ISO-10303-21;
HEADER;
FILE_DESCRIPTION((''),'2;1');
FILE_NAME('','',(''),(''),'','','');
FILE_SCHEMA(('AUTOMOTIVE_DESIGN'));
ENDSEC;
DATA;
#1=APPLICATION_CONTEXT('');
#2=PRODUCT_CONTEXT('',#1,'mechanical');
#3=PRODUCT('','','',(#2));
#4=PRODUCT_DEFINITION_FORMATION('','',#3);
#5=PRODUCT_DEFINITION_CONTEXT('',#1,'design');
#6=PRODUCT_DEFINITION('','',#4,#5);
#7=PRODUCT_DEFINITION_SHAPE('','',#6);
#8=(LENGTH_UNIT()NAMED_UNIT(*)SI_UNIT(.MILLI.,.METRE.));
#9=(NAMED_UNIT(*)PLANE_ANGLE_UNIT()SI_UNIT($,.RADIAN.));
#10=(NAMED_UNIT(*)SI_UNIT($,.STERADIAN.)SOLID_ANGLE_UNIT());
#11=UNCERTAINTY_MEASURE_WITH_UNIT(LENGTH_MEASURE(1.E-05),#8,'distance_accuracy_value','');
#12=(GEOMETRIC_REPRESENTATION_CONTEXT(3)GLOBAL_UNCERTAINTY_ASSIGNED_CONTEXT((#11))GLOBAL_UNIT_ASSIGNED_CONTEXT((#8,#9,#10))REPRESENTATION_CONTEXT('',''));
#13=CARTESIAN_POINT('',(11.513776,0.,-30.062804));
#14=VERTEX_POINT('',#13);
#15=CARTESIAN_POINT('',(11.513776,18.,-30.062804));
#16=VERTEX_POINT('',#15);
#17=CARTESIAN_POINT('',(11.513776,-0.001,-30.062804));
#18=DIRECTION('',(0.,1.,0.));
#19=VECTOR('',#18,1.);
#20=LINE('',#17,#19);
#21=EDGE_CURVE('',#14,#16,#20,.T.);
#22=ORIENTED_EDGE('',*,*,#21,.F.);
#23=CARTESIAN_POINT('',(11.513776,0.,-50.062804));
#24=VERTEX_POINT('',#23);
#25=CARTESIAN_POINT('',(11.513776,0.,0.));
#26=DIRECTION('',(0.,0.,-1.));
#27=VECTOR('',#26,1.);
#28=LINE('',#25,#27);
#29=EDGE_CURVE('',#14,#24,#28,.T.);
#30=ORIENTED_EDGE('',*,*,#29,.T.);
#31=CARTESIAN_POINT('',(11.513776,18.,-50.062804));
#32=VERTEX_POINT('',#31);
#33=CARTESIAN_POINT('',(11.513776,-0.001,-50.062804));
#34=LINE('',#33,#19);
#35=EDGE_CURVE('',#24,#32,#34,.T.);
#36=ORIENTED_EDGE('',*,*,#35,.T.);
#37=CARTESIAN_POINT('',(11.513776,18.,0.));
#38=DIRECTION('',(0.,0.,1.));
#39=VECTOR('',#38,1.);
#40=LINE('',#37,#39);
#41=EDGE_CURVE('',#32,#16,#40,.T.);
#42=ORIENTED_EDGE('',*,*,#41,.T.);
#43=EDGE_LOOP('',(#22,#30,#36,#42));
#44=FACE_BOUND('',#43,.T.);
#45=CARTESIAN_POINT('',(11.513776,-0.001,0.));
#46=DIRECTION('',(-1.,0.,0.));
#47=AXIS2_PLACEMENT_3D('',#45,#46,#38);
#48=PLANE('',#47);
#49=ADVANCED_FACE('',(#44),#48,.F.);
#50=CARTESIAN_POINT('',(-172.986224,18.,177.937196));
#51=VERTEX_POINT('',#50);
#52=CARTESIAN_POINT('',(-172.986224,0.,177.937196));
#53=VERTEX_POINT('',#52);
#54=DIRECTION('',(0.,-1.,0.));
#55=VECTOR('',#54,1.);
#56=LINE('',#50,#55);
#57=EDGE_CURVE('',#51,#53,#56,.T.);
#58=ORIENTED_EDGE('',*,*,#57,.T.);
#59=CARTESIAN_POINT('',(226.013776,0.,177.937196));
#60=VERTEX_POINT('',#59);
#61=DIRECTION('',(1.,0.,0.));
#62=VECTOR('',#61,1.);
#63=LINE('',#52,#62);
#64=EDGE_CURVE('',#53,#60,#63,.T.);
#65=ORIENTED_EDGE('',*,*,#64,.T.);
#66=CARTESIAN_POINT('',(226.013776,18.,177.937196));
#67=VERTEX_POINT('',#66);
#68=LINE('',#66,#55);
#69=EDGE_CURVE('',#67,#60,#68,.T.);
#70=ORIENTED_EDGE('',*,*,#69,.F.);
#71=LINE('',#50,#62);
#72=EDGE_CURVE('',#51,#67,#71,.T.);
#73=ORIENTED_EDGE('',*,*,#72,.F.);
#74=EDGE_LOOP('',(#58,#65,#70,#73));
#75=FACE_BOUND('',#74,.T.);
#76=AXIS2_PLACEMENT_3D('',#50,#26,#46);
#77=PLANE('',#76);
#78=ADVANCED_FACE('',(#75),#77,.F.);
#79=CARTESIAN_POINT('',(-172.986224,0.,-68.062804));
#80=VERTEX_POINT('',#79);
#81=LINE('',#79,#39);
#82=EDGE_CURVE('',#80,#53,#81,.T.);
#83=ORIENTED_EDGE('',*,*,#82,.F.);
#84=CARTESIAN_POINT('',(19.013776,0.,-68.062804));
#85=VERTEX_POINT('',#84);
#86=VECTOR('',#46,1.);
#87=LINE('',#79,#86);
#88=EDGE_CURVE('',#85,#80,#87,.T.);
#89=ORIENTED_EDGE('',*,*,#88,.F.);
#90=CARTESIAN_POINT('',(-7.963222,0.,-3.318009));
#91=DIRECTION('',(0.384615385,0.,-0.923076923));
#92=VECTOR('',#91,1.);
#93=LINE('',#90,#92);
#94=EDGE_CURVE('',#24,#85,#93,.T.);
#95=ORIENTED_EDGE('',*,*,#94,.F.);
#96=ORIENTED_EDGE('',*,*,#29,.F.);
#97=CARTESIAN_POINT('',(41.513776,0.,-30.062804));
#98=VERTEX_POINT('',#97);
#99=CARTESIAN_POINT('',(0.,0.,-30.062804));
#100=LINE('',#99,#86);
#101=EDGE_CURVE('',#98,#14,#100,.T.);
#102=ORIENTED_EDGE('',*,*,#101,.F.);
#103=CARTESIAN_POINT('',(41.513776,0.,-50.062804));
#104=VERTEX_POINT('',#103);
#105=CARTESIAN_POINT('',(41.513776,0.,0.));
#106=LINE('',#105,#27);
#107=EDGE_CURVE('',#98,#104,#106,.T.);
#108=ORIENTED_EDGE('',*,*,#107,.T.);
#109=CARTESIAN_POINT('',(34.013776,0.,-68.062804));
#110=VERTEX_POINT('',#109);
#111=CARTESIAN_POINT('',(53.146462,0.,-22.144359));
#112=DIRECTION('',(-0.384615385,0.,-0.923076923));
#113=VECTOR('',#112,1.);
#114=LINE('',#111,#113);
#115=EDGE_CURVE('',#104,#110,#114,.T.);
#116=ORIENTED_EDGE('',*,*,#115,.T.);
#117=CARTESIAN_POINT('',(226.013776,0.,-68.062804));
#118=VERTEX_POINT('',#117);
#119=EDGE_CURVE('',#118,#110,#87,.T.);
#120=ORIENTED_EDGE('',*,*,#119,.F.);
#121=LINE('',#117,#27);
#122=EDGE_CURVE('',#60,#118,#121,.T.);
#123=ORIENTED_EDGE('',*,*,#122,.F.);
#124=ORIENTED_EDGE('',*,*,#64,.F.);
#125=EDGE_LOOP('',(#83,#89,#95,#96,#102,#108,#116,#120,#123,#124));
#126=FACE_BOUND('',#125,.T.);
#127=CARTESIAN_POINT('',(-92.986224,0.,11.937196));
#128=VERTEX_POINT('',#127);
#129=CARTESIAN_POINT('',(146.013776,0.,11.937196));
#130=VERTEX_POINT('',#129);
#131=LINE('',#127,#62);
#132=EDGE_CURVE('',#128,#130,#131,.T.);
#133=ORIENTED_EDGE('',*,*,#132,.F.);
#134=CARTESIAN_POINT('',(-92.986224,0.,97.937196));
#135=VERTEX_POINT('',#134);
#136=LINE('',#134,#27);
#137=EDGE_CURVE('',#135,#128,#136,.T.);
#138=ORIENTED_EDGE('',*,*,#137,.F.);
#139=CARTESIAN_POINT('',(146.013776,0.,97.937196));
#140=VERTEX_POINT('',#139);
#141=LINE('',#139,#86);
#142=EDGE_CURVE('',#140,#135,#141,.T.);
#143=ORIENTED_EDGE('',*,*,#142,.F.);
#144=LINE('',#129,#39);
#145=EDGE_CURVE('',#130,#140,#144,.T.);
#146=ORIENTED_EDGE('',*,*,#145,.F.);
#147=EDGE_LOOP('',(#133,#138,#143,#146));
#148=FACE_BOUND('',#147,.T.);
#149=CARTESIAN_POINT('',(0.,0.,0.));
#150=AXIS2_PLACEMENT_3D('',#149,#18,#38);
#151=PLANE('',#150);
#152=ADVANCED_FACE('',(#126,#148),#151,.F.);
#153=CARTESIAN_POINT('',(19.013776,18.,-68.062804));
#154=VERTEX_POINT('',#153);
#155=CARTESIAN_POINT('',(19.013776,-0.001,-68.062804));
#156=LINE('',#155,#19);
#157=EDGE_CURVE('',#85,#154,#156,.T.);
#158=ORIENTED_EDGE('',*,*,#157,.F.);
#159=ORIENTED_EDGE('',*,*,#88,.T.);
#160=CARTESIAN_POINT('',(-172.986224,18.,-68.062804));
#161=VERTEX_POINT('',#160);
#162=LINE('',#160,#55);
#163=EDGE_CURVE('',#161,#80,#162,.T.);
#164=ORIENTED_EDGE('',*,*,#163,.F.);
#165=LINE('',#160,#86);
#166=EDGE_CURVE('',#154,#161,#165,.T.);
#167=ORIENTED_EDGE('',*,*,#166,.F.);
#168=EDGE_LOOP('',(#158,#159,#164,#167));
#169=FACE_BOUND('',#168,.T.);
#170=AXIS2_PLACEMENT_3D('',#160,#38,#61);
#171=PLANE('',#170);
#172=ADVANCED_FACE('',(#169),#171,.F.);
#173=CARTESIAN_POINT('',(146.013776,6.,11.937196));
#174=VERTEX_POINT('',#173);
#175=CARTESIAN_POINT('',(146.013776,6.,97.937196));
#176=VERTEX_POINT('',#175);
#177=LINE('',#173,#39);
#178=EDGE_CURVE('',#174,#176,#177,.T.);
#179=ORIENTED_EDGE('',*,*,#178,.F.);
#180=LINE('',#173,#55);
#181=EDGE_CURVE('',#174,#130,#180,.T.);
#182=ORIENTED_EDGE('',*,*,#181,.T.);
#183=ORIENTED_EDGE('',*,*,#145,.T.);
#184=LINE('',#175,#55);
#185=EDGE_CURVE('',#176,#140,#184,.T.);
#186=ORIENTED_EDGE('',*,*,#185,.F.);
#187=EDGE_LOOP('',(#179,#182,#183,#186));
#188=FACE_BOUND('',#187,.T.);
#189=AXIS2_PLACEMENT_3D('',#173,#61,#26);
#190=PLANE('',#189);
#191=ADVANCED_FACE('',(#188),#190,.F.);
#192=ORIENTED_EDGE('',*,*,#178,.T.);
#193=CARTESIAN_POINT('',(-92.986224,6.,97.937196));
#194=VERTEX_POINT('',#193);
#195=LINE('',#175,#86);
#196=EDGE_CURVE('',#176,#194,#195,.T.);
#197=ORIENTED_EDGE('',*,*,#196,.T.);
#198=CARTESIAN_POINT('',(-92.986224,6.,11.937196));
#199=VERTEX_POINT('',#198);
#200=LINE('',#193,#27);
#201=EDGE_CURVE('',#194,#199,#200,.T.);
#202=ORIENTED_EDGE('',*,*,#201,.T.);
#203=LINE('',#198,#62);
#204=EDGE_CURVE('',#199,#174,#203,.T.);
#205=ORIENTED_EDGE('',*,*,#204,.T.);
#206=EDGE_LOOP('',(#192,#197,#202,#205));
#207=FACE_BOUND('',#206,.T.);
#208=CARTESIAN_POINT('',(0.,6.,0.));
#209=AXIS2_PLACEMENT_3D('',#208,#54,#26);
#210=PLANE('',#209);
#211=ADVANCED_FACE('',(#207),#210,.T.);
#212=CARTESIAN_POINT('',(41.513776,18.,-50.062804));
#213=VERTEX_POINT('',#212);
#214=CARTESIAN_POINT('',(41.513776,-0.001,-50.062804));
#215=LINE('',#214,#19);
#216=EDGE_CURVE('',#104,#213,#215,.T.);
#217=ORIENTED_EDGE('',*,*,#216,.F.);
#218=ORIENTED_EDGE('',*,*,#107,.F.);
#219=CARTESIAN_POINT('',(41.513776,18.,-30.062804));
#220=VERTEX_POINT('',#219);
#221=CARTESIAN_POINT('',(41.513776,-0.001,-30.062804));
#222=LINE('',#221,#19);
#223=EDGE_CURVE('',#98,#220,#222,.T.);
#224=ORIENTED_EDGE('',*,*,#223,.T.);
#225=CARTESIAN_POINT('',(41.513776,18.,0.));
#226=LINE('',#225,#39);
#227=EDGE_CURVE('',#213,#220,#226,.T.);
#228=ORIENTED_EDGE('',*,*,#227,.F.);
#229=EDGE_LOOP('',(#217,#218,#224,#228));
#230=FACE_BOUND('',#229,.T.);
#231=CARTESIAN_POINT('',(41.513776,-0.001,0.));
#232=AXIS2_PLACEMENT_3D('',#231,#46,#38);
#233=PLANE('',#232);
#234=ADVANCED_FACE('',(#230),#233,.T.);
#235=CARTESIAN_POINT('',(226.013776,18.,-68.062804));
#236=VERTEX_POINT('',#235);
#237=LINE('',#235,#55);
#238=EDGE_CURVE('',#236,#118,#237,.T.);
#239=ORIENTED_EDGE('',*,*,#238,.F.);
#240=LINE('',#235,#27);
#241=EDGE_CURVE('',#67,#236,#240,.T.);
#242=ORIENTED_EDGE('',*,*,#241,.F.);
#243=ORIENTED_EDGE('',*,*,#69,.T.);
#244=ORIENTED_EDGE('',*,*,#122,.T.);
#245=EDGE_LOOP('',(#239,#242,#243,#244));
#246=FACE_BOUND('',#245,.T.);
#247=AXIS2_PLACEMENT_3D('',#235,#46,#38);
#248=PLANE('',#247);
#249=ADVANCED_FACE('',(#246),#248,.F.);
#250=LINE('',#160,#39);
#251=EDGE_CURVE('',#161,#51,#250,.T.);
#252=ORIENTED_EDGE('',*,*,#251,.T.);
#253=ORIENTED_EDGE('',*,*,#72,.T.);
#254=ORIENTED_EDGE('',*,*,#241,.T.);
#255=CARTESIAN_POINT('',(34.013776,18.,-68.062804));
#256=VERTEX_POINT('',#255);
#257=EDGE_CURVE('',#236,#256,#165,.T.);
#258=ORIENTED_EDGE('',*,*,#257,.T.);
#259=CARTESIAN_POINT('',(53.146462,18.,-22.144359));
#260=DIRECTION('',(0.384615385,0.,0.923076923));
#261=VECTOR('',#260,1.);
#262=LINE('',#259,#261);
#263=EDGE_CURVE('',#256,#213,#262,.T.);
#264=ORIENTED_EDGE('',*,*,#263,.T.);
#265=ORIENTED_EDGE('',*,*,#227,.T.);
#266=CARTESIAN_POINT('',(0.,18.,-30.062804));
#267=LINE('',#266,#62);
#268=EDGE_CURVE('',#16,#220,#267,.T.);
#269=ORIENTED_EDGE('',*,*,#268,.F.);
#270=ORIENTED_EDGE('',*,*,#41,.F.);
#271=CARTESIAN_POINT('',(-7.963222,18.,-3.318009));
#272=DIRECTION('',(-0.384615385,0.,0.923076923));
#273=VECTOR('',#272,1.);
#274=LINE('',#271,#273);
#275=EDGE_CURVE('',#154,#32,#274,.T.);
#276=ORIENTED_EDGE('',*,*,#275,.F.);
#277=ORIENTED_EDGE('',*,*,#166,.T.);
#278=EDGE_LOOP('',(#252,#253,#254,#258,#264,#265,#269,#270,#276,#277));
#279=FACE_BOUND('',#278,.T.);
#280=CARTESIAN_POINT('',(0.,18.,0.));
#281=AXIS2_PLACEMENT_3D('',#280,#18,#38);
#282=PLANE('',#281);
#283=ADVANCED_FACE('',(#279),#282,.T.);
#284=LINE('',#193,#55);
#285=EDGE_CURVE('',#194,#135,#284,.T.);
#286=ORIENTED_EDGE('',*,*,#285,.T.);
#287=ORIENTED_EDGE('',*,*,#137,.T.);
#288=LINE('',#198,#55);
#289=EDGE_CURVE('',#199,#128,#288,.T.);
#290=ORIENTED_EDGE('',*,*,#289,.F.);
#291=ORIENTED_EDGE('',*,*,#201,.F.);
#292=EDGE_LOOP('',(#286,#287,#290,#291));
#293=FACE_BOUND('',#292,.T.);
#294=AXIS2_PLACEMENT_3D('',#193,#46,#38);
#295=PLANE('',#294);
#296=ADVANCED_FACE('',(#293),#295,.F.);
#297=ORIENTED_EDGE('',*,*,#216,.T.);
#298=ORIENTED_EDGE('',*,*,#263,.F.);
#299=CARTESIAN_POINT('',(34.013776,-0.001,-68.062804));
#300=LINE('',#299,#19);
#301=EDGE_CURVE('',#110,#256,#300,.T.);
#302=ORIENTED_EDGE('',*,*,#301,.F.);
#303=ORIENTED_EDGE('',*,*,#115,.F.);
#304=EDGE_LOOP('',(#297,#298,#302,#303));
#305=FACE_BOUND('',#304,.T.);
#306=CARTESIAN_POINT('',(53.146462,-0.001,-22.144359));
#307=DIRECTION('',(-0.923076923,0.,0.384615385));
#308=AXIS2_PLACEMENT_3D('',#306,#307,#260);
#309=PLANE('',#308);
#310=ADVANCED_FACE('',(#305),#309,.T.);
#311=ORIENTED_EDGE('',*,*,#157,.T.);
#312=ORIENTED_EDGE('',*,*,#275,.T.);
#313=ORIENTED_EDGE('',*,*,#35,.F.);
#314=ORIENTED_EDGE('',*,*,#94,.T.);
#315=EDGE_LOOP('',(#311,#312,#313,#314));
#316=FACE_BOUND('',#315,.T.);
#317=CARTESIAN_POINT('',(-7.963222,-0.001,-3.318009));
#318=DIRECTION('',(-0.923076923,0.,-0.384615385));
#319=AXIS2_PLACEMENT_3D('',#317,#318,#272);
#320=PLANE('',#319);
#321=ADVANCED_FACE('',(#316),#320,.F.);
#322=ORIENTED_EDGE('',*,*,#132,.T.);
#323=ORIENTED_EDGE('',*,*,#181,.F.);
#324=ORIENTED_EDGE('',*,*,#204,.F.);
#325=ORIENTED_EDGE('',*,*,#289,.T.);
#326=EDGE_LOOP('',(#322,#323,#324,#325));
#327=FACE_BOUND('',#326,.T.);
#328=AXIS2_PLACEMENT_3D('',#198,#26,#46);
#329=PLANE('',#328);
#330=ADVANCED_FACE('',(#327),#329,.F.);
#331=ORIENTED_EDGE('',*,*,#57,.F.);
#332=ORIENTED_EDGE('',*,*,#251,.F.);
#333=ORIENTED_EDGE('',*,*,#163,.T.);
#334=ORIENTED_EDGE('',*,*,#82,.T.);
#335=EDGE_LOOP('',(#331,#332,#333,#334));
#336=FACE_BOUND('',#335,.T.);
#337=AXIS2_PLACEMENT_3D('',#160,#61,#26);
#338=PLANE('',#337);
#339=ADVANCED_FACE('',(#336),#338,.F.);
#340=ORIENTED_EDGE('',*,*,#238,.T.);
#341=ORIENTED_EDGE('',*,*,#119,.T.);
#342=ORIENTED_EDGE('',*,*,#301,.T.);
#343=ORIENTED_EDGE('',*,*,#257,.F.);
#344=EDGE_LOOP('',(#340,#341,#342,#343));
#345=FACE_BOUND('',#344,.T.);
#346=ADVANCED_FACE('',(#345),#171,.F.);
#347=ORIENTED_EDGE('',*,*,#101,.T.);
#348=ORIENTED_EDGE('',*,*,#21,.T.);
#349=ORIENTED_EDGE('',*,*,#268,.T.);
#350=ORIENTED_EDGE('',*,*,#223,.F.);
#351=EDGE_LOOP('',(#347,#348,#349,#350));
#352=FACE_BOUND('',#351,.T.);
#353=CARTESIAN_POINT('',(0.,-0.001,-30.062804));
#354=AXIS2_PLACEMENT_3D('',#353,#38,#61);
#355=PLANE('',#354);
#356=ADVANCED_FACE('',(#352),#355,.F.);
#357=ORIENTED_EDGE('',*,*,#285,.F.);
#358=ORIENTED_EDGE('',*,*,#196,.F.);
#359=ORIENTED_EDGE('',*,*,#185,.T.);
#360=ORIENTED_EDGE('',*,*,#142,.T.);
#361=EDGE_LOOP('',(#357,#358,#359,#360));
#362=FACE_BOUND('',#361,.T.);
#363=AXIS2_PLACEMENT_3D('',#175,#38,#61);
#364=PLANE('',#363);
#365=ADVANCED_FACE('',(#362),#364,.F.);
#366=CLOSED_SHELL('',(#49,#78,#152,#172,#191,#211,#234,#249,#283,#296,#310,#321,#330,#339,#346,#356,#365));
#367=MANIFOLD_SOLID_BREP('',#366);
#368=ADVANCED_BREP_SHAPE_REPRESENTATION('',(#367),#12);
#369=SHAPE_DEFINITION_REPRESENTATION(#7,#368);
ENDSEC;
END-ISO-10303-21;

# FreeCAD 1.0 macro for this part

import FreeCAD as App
import Part
import Sketcher

doc = App.newDocument("Part")
body = doc.addObject("PartDesign::Body", "Body")

# Sketch on XZ plane
sketch1 = body.newObject("Sketcher::SketchObject", "Sketch")
sketch1.AttachmentSupport = (doc.getObject("XZ_Plane"), [""])
sketch1.MapMode = "FlatFace"
sketch1.addGeometry([
    Part.LineSegment(App.Vector(-173, -68, 0), App.Vector(-173, 178, 0)),
    Part.LineSegment(App.Vector(-173, 178, 0), App.Vector(226, 178, 0)),
    Part.LineSegment(App.Vector(226, 178, 0), App.Vector(226, -68, 0)),
    Part.LineSegment(App.Vector(226, -68, 0), App.Vector(-173, -68, 0)),
], False)
sketch1.addConstraint([
    Sketcher.Constraint("Coincident", 0, 2, 1, 1),
    Sketcher.Constraint("Coincident", 1, 2, 2, 1),
    Sketcher.Constraint("Coincident", 2, 2, 3, 1),
    Sketcher.Constraint("Coincident", 3, 2, 0, 1),
    Sketcher.Constraint("Vertical", 0),
    Sketcher.Constraint("Horizontal", 1),
    Sketcher.Constraint("Vertical", 2),
    Sketcher.Constraint("Horizontal", 3),
    Sketcher.Constraint("DistanceX", 1, 1, 1, 2, 399.0),
    Sketcher.Constraint("DistanceY", 0, 1, 0, 2, 246.0),
    Sketcher.Constraint("DistanceX", 0, 2, -1, 1, 172.986224),
    Sketcher.Constraint("DistanceY", -1, 1, 0, 2, 177.937196),
])
pad1 = body.newObject("PartDesign::Pad", "Pad")
pad1.Profile = sketch1
pad1.Length = 18
pad1.Reversed = True

# Sketch on XZ plane
sketch2 = body.newObject("Sketcher::SketchObject", "Sketch001")
sketch2.AttachmentSupport = (doc.getObject("XZ_Plane"), [""])
sketch2.MapMode = "FlatFace"
sketch2.addGeometry([
    Part.LineSegment(App.Vector(-93, 98, 0), App.Vector(-93, 12, 0)),
    Part.LineSegment(App.Vector(-93, 12, 0), App.Vector(146, 12, 0)),
    Part.LineSegment(App.Vector(146, 12, 0), App.Vector(146, 98, 0)),
    Part.LineSegment(App.Vector(146, 98, 0), App.Vector(-93, 98, 0)),
], False)
sketch2.addConstraint([
    Sketcher.Constraint("Coincident", 0, 2, 1, 1),
    Sketcher.Constraint("Coincident", 1, 2, 2, 1),
    Sketcher.Constraint("Coincident", 2, 2, 3, 1),
    Sketcher.Constraint("Coincident", 3, 2, 0, 1),
    Sketcher.Constraint("Vertical", 0),
    Sketcher.Constraint("Horizontal", 1),
    Sketcher.Constraint("Vertical", 2),
    Sketcher.Constraint("Horizontal", 3),
    Sketcher.Constraint("DistanceX", 1, 1, 1, 2, 239.0),
    Sketcher.Constraint("DistanceY", 0, 2, 0, 1, 86.0),
    Sketcher.Constraint("DistanceX", 0, 2, -1, 1, 92.986224),
    Sketcher.Constraint("DistanceY", -1, 1, 0, 2, 11.937196),
])
pocket1 = body.newObject("PartDesign::Pocket", "Pocket")
pocket1.Profile = sketch2
pocket1.Length = 6

# Sketch on XZ plane
sketch3 = body.newObject("Sketcher::SketchObject", "Sketch002")
sketch3.AttachmentSupport = (doc.getObject("XZ_Plane"), [""])
sketch3.MapMode = "FlatFace"
sketch3.AttachmentOffset = App.Placement(App.Vector(0, 0, -18), App.Rotation())
sketch3.addGeometry([
    Part.LineSegment(App.Vector(34, -68, 0), App.Vector(19, -68, 0)),  # 0
    Part.LineSegment(App.Vector(19, -68, 0), App.Vector(12, -50, 0)),  # 1
    Part.LineSegment(App.Vector(12, -50, 0), App.Vector(12, -30, 0)),  # 2
    Part.LineSegment(App.Vector(12, -30, 0), App.Vector(42, -30, 0)),  # 3
    Part.LineSegment(App.Vector(42, -30, 0), App.Vector(42, -50, 0)),  # 4
    Part.LineSegment(App.Vector(42, -50, 0), App.Vector(34, -68, 0)),  # 5
], False)
sketch3.addConstraint([
    Sketcher.Constraint("Coincident", 0, 2, 1, 1),
    Sketcher.Constraint("Coincident", 1, 2, 2, 1),
    Sketcher.Constraint("Coincident", 2, 2, 3, 1),
    Sketcher.Constraint("Coincident", 3, 2, 4, 1),
    Sketcher.Constraint("Coincident", 4, 2, 5, 1),
    Sketcher.Constraint("Coincident", 5, 2, 0, 1),
    Sketcher.Constraint("Horizontal", 0),
    Sketcher.Constraint("Vertical", 2),
    Sketcher.Constraint("Horizontal", 3),
    Sketcher.Constraint("Vertical", 4),
    Sketcher.Constraint("Horizontal", 1, 2, 4, 2),
    Sketcher.Constraint("Equal", 1, 5),
    Sketcher.Constraint("DistanceX", 0, 2, 0, 1, 15.0),
    Sketcher.Constraint("DistanceX", 3, 1, 3, 2, 30.0),
    Sketcher.Constraint("DistanceY", 2, 1, 2, 2, 20.0),
    Sketcher.Constraint("DistanceY", 0, 2, 1, 2, 18.0),
    Sketcher.Constraint("DistanceX", -1, 1, 0, 2, 19.013776),
    Sketcher.Constraint("DistanceY", 0, 2, -1, 1, 68.062804),
])
pocket2 = body.newObject("PartDesign::Pocket", "Pocket001")
pocket2.Profile = sketch3
pocket2.Type = "UpToFirst"
pocket2.Reversed = True

doc.recompute()
